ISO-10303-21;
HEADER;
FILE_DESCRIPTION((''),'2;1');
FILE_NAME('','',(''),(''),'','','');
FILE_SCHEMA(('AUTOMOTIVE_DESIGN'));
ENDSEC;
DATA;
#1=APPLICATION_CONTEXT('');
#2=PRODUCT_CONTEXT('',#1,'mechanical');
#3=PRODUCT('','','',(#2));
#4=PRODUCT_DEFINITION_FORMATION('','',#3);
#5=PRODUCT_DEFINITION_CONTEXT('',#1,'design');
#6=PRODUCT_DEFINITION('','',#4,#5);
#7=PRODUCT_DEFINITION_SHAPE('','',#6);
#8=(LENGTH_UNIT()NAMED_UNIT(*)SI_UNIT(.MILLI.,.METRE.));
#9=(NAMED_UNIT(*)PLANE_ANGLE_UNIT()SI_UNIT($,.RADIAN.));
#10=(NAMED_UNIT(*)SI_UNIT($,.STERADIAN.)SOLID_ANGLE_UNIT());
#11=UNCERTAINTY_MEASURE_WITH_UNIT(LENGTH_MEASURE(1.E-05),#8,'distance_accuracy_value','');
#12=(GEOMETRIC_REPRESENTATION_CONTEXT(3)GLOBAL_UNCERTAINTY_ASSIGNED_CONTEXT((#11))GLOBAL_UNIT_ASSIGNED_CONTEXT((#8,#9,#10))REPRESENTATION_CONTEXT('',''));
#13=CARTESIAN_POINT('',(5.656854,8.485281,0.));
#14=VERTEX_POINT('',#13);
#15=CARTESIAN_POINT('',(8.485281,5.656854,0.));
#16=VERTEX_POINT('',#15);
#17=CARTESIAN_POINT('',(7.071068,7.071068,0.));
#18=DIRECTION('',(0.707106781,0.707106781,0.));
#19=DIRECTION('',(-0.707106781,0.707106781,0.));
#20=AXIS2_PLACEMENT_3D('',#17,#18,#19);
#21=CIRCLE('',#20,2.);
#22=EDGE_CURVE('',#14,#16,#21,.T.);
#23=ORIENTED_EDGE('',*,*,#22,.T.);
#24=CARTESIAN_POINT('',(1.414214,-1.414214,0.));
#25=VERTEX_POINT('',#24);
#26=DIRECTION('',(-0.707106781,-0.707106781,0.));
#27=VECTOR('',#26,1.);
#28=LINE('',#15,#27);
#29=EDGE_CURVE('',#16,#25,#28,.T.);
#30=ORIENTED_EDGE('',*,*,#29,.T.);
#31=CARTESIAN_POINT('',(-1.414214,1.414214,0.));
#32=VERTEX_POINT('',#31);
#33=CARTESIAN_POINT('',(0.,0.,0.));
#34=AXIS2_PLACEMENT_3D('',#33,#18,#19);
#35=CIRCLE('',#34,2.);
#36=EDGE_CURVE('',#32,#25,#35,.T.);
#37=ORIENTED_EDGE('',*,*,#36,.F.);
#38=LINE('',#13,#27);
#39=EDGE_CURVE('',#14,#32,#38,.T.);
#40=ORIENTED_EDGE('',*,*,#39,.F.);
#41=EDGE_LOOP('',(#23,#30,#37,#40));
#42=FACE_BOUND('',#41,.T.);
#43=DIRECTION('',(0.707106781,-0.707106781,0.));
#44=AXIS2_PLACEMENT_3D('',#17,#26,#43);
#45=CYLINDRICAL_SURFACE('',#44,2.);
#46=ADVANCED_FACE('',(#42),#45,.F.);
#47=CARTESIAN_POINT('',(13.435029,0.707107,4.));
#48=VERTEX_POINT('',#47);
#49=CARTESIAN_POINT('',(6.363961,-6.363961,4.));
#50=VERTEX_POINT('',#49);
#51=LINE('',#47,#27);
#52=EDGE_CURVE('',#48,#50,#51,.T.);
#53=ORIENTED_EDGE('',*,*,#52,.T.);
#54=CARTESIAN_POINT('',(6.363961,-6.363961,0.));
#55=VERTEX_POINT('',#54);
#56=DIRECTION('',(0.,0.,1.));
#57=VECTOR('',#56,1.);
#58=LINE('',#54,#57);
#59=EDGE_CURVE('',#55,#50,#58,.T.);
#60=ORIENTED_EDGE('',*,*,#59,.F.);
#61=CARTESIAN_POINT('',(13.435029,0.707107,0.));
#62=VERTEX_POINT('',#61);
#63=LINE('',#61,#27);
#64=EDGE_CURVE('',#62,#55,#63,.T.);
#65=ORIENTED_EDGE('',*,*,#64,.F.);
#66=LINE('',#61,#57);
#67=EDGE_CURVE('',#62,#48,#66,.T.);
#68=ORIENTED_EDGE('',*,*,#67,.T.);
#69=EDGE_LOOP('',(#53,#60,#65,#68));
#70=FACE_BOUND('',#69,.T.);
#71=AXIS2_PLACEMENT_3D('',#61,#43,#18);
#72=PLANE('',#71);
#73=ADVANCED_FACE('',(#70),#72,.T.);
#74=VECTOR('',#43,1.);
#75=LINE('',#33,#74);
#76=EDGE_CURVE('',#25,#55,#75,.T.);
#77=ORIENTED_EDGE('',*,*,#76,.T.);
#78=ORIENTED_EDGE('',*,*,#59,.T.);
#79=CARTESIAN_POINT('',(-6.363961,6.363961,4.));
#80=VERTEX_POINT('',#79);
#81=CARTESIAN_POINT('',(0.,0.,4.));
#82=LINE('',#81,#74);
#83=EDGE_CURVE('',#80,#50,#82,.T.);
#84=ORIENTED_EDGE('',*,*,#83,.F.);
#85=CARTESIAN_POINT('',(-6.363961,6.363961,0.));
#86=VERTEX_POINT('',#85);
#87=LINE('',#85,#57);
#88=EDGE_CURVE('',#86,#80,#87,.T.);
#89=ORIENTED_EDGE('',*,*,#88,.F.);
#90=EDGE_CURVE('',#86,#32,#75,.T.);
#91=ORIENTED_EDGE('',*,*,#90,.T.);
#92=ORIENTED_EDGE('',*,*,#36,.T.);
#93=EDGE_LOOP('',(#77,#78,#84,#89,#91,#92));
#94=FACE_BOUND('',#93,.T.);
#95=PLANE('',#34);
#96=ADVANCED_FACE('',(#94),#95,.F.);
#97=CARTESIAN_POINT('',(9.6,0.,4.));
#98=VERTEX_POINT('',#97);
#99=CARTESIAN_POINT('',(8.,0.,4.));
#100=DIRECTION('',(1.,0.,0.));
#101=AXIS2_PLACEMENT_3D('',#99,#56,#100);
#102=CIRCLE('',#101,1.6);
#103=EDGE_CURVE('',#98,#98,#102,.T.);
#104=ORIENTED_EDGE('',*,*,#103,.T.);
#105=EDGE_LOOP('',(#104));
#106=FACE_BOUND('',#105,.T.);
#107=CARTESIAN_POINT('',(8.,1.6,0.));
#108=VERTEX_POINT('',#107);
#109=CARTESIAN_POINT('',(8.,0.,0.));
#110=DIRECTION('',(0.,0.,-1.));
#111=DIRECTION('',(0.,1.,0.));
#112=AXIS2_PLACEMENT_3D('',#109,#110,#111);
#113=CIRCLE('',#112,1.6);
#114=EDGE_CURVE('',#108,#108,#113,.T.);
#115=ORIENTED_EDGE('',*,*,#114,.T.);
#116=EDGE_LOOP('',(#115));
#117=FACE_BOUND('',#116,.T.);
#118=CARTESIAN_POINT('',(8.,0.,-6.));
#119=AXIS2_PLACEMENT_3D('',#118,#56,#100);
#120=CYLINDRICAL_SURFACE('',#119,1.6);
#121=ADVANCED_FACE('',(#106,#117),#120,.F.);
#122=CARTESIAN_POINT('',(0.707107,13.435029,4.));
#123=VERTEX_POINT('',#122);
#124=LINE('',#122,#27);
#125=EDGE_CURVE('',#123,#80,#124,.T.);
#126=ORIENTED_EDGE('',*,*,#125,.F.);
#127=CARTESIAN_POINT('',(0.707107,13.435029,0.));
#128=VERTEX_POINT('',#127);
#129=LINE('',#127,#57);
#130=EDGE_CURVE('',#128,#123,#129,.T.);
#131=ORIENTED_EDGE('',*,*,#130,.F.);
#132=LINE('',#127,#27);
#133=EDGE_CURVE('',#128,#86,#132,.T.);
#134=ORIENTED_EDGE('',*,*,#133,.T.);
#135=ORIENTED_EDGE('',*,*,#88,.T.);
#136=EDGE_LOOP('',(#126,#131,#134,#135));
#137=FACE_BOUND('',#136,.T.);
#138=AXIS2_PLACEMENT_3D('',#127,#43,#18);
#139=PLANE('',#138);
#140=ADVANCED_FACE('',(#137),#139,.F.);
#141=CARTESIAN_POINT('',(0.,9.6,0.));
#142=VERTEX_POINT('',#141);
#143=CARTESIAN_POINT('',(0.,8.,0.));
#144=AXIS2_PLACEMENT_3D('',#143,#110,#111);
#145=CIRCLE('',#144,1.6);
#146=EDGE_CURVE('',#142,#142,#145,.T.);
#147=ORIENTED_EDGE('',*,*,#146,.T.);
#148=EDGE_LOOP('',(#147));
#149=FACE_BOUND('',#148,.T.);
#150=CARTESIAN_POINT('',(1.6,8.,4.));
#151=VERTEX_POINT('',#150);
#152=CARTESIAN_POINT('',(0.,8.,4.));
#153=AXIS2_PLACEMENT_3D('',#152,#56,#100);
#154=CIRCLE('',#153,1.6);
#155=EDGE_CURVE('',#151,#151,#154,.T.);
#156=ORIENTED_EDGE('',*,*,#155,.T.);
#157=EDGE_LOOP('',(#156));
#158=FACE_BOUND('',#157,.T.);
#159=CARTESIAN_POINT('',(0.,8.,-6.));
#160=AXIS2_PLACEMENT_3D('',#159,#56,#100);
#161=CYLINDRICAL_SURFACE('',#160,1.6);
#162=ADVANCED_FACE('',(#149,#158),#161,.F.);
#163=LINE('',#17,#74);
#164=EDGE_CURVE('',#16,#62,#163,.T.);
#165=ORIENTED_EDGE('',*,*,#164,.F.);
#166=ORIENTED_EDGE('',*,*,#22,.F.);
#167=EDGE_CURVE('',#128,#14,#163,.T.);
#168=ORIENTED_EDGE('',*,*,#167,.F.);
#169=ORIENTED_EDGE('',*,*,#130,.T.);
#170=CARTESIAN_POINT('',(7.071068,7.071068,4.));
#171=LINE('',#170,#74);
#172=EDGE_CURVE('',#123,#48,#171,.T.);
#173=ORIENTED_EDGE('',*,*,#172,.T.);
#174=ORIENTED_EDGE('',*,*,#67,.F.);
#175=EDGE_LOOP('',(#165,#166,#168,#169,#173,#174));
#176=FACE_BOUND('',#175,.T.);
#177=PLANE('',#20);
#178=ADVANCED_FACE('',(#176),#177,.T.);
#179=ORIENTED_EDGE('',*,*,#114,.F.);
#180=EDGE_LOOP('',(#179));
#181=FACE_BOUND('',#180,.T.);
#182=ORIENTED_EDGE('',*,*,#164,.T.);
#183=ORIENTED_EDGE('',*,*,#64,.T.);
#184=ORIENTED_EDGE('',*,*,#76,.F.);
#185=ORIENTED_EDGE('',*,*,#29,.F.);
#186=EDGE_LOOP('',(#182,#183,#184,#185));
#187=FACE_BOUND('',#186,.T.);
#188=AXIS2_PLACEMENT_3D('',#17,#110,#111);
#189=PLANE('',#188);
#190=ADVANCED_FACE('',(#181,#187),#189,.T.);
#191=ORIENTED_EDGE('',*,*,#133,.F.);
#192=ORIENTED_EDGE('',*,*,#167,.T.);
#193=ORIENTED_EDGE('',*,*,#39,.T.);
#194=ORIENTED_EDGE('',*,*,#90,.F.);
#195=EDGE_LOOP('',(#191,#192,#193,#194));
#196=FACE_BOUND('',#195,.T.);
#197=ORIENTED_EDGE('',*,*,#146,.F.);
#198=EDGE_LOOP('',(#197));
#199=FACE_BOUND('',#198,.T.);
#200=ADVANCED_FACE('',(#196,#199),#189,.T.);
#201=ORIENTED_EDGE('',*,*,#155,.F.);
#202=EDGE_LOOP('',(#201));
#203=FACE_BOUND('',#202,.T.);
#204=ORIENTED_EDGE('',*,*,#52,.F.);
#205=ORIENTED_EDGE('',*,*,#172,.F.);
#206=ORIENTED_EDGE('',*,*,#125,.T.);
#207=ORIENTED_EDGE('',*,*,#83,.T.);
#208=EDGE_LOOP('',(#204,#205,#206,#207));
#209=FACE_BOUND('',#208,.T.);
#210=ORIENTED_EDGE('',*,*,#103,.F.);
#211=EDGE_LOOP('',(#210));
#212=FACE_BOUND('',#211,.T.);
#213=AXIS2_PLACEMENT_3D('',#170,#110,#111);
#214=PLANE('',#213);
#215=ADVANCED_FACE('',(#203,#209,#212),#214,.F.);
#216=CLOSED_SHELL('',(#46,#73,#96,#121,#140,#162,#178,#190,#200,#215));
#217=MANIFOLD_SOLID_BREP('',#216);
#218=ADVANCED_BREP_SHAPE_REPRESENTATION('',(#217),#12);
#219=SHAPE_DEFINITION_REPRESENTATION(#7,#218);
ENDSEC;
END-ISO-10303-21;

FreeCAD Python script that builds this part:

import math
import FreeCAD as App
import Part
import Sketcher

V = App.Vector

doc = App.newDocument("Part")
body = doc.addObject("PartDesign::Body", "Body")

# Sketch on an angled plane
sketch1 = body.newObject("Sketcher::SketchObject", "Sketch")
sketch1.Placement = App.Placement(V(0, 0, 0), App.Rotation(V(0, 0, -1), V(-0.707106781, 0.707106781, 0), V(0.707106781, 0.707106781, 0), "ZXY"))
sketch1.addGeometry([
    Part.LineSegment(V(0, 2, 0), V(0, 9, 0)),  # 0
    Part.LineSegment(V(0, 9, 0), V(-4, 9, 0)),  # 1
    Part.LineSegment(V(-4, 9, 0), V(-4, -9, 0)),  # 2
    Part.LineSegment(V(-4, -9, 0), V(0, -9, 0)),  # 3
    Part.LineSegment(V(0, -9, 0), V(0, -2, 0)),  # 4
    Part.ArcOfCircle(Part.Circle(V(0, 0, 0), V(0, 0, 1), 2), math.radians(90), math.radians(270)),  # 5
], False)
sketch1.addConstraint([
    Sketcher.Constraint("Coincident", 0, 2, 1, 1),
    Sketcher.Constraint("Coincident", 1, 2, 2, 1),
    Sketcher.Constraint("Coincident", 2, 2, 3, 1),
    Sketcher.Constraint("Coincident", 3, 2, 4, 1),
    Sketcher.Constraint("Coincident", 4, 2, 5, 2),
    Sketcher.Constraint("Coincident", 5, 1, 0, 1),
    Sketcher.Constraint("Vertical", 0),
    Sketcher.Constraint("Horizontal", 1),
    Sketcher.Constraint("Vertical", 2),
    Sketcher.Constraint("Horizontal", 3),
    Sketcher.Constraint("Vertical", 4),
    Sketcher.Constraint("Coincident", 5, 3, -1, 1),
    Sketcher.Constraint("Symmetric", 0, 2, 3, 2, -1, 1),
    Sketcher.Constraint("PointOnObject", 0, 2, -2),
    Sketcher.Constraint("Radius", 5, 2.0),
    Sketcher.Constraint("DistanceX", 1, 2, 1, 1, 4.0),
    Sketcher.Constraint("DistanceY", 0, 1, 0, 2, 7.0),
])
pad1 = body.newObject("PartDesign::Pad", "Pad")
pad1.Profile = sketch1
pad1.Length = 10

# Sketch on XY plane
sketch2 = body.newObject("Sketcher::SketchObject", "Sketch001")
sketch2.AttachmentSupport = (doc.getObject("XY_Plane"), [""])
sketch2.MapMode = "FlatFace"
sketch2.AttachmentOffset = App.Placement(V(0, 0, 4), App.Rotation())
sketch2.addGeometry([
    Part.Circle(V(0, 8, 0), V(0, 0, 1), 1.6),
    Part.Circle(V(8, 0, 0), V(0, 0, 1), 1.6),
], False)
sketch2.addConstraint([
    Sketcher.Constraint("Equal", 0, 1),
    Sketcher.Constraint("PointOnObject", 0, 3, -2),
    Sketcher.Constraint("PointOnObject", 1, 3, -1),
    Sketcher.Constraint("Diameter", 0, 3.2),
    Sketcher.Constraint("DistanceY", -1, 1, 0, 3, 8.0),
    Sketcher.Constraint("DistanceX", -1, 1, 1, 3, 8.0),
])
pocket1 = body.newObject("PartDesign::Pocket", "Pocket")
pocket1.Profile = sketch2
pocket1.Length = 10

doc.recompute()
